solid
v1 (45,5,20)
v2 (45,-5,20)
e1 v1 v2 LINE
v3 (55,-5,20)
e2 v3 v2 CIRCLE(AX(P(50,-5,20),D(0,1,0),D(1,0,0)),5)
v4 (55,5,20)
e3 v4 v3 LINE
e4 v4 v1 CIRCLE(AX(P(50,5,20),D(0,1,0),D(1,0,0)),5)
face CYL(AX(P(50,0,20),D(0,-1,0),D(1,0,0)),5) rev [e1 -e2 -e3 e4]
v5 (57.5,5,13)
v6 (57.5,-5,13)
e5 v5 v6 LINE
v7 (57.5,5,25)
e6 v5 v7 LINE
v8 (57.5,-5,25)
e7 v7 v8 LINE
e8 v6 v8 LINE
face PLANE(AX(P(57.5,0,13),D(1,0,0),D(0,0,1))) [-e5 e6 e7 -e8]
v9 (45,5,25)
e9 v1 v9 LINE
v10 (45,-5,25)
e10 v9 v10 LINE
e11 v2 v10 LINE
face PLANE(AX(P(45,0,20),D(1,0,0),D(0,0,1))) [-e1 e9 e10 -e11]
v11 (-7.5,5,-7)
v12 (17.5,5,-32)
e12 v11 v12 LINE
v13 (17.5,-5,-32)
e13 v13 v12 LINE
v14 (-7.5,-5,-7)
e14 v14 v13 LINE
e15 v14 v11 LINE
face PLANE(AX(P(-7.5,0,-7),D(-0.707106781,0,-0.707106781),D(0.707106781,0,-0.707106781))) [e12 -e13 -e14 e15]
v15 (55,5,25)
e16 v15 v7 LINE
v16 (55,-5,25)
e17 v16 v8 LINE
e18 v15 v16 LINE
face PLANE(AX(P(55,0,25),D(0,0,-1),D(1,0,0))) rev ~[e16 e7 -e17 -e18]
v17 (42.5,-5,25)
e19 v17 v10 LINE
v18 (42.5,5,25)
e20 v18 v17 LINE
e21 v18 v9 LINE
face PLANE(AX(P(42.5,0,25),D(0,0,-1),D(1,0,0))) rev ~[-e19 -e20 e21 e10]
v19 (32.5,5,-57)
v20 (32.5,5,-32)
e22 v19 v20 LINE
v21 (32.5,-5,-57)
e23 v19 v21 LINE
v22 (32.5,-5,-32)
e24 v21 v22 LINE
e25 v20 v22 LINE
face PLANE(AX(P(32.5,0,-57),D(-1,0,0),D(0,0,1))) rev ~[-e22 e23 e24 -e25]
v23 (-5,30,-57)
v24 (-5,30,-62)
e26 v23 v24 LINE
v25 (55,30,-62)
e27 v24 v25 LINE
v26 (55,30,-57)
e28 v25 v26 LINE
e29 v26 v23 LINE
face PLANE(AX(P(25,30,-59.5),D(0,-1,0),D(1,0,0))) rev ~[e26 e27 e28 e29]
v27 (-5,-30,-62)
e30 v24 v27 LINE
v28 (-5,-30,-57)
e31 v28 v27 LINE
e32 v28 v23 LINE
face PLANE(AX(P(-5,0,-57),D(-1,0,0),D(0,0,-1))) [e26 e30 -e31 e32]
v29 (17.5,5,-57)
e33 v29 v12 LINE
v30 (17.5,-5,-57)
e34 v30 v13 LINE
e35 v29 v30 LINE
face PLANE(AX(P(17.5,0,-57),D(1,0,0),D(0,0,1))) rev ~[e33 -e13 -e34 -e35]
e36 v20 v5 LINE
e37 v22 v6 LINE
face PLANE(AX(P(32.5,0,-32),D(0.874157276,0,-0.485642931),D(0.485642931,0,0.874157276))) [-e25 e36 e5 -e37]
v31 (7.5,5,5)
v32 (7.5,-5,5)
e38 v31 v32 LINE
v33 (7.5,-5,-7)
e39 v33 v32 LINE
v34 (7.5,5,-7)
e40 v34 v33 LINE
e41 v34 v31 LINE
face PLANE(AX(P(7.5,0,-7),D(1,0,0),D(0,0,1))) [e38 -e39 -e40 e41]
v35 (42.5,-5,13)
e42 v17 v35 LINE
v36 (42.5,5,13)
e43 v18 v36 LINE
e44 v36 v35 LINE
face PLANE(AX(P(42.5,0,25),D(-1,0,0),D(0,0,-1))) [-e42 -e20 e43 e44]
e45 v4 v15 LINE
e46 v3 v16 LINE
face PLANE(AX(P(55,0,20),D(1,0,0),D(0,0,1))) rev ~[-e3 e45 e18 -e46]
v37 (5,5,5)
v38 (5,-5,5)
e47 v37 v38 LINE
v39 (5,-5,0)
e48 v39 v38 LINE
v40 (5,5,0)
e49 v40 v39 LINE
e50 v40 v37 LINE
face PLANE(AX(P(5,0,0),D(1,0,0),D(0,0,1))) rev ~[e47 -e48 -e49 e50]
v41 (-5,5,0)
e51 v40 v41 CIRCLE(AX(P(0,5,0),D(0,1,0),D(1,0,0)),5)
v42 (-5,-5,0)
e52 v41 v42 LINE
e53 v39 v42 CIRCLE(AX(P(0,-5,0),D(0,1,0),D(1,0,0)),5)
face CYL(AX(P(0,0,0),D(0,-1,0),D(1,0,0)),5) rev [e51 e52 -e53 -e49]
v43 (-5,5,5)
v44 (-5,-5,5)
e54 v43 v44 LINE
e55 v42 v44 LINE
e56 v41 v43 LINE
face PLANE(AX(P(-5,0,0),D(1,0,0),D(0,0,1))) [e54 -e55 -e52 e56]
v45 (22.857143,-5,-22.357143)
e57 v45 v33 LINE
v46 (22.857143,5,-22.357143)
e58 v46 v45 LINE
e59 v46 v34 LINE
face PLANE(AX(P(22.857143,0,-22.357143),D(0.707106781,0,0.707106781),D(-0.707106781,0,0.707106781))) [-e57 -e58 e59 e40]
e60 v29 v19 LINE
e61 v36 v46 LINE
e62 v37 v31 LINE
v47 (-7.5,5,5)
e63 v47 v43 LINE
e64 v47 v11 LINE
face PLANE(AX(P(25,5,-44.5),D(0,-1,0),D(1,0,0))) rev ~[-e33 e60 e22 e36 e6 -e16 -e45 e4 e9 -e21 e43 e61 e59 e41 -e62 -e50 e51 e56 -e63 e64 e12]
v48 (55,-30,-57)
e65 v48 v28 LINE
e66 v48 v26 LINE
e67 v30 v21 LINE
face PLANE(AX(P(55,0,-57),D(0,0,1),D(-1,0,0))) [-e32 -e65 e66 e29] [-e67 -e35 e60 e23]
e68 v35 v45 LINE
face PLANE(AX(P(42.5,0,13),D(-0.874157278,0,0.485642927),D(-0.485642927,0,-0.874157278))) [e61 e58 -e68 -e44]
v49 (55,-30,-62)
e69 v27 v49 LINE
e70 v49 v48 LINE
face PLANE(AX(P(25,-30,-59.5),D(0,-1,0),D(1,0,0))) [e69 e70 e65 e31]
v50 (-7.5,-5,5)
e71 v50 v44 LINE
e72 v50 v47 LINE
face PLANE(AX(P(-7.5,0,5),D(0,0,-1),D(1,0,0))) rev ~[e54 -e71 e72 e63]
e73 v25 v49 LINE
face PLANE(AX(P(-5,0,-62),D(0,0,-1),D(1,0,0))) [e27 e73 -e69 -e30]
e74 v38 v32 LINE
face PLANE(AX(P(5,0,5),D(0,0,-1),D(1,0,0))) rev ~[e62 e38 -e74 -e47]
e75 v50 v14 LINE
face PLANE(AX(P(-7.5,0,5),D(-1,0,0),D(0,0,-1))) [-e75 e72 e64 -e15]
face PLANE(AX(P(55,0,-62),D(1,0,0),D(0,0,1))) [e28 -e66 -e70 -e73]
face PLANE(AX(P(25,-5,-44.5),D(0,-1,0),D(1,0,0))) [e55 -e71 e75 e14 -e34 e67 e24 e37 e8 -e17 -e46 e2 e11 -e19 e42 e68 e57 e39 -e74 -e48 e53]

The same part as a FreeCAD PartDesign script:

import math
import FreeCAD as App
import Part
import Sketcher
from FreeCAD import Vector
Q = App.Units.Quantity


def add_polygon(sketch, points):
    """Adds a closed chain of lines whose ends are joined by coincident constraints."""
    first, n = sketch.GeometryCount, len(points)
    for a, b in zip(points, points[1:] + points[:1]):
        sketch.addGeometry(Part.LineSegment(App.Vector(*a, 0), App.Vector(*b, 0)), False)
    for i in range(n):
        sketch.addConstraint(Sketcher.Constraint("Coincident", first + i, 2, first + (i + 1) % n, 1))

doc = App.newDocument("Part")
body = doc.addObject("PartDesign::Body", "Body")

sketch1 = body.newObject("Sketcher::SketchObject", "Sketch")
sketch1.AttachmentSupport = (doc.getObject("XZ_Plane"), [""])
sketch1.MapMode = "FlatFace"
add_polygon(sketch1, [(-5, -57), (-5, -62), (55, -62), (55, -57)])
sketch1.addConstraint([
    Sketcher.Constraint("Vertical", 0),
    Sketcher.Constraint("Horizontal", 1),
    Sketcher.Constraint("Vertical", 2),
    Sketcher.Constraint("Horizontal", 3),
    Sketcher.Constraint("DistanceX", 1, 1, 1, 2, Q("60 mm")),
    Sketcher.Constraint("DistanceY", 0, 2, 0, 1, Q("5 mm")),
    Sketcher.Constraint("DistanceX", 0, 2, -1, 1, Q("5 mm")),
    Sketcher.Constraint("DistanceY", 0, 2, -1, 1, Q("62 mm")),
])
pad1 = body.newObject("PartDesign::Pad", "Pad")
pad1.Profile = sketch1
pad1.Type = "TwoLengths"
pad1.Length = 30
pad1.Length2 = 30

sketch2 = body.newObject("Sketcher::SketchObject", "Sketch001")
sketch2.AttachmentSupport = (doc.getObject("XZ_Plane"), [""])
sketch2.MapMode = "FlatFace"
sketch2.addGeometry([
    Part.LineSegment(Vector(17.5, -32, 0), Vector(17.5, -57, 0)),
    Part.LineSegment(Vector(17.5, -57, 0), Vector(32.5, -57, 0)),
    Part.LineSegment(Vector(32.5, -57, 0), Vector(32.5, -32, 0)),
    Part.LineSegment(Vector(32.5, -32, 0), Vector(57.5, 13, 0)),
    Part.LineSegment(Vector(57.5, 13, 0), Vector(57.5, 25, 0)),
    Part.LineSegment(Vector(57.5, 25, 0), Vector(55, 25, 0)),
    Part.LineSegment(Vector(55, 25, 0), Vector(55, 20, 0)),
    Part.ArcOfCircle(Part.Circle(Vector(50, 20, 0), Vector(0, 0, 1), 5), math.radians(180), math.radians(360)),
    Part.LineSegment(Vector(45, 20, 0), Vector(45, 25, 0)),
    Part.LineSegment(Vector(45, 25, 0), Vector(42.5, 25, 0)),
    Part.LineSegment(Vector(42.5, 25, 0), Vector(42.5, 13, 0)),
    Part.LineSegment(Vector(42.5, 13, 0), Vector(22.9, -22.4, 0)),
    Part.LineSegment(Vector(22.9, -22.4, 0), Vector(7.5, -7, 0)),
    Part.LineSegment(Vector(7.5, -7, 0), Vector(7.5, 5, 0)),
    Part.LineSegment(Vector(7.5, 5, 0), Vector(5, 5, 0)),
    Part.LineSegment(Vector(5, 5, 0), Vector(5, 0, 0)),
    Part.ArcOfCircle(Part.Circle(Vector(0, 0, 0), Vector(0, 0, 1), 5), math.radians(180), math.radians(360)),
    Part.LineSegment(Vector(-5, 0, 0), Vector(-5, 5, 0)),
    Part.LineSegment(Vector(-5, 5, 0), Vector(-7.5, 5, 0)),
    Part.LineSegment(Vector(-7.5, 5, 0), Vector(-7.5, -7, 0)),
    Part.LineSegment(Vector(-7.5, -7, 0), Vector(17.5, -32, 0)),
], False)
sketch2.addConstraint([
    Sketcher.Constraint("Coincident", 0, 2, 1, 1),
    Sketcher.Constraint("Coincident", 1, 2, 2, 1),
    Sketcher.Constraint("Coincident", 2, 2, 3, 1),
    Sketcher.Constraint("Coincident", 3, 2, 4, 1),
    Sketcher.Constraint("Coincident", 4, 2, 5, 1),
    Sketcher.Constraint("Coincident", 5, 2, 6, 1),
    Sketcher.Constraint("Tangent", 6, 2, 7, 2),
    Sketcher.Constraint("Tangent", 7, 1, 8, 1),
    Sketcher.Constraint("Coincident", 8, 2, 9, 1),
    Sketcher.Constraint("Coincident", 9, 2, 10, 1),
    Sketcher.Constraint("Coincident", 10, 2, 11, 1),
    Sketcher.Constraint("Coincident", 11, 2, 12, 1),
    Sketcher.Constraint("Coincident", 12, 2, 13, 1),
    Sketcher.Constraint("Coincident", 13, 2, 14, 1),
    Sketcher.Constraint("Coincident", 14, 2, 15, 1),
    Sketcher.Constraint("Tangent", 15, 2, 16, 2),
    Sketcher.Constraint("Tangent", 16, 1, 17, 1),
    Sketcher.Constraint("Coincident", 17, 2, 18, 1),
    Sketcher.Constraint("Coincident", 18, 2, 19, 1),
    Sketcher.Constraint("Coincident", 19, 2, 20, 1),
    Sketcher.Constraint("Coincident", 20, 2, 0, 1),
    Sketcher.Constraint("Vertical", 0),
    Sketcher.Constraint("Horizontal", 1),
    Sketcher.Constraint("Vertical", 2),
    Sketcher.Constraint("Vertical", 4),
    Sketcher.Constraint("Horizontal", 5),
    Sketcher.Constraint("Vertical", 6),
    Sketcher.Constraint("Vertical", 8),
    Sketcher.Constraint("Horizontal", 9),
    Sketcher.Constraint("Vertical", 10),
    Sketcher.Constraint("Vertical", 13),
    Sketcher.Constraint("Horizontal", 14),
    Sketcher.Constraint("Vertical", 15),
    Sketcher.Constraint("Vertical", 17),
    Sketcher.Constraint("Horizontal", 18),
    Sketcher.Constraint("Vertical", 19),
    Sketcher.Constraint("Coincident", 16, 3, -1, 1),
    Sketcher.Constraint("Equal", 7, 16),
    Sketcher.Constraint("Symmetric", 13, 2, 18, 2, -2),
    Sketcher.Constraint("Parallel", 3, 11),
    Sketcher.Constraint("Parallel", 12, 20),
    Sketcher.Constraint("Horizontal", 5, 2, 8, 2),
    Sketcher.Constraint("Horizontal", 3, 2, 10, 2),
    Sketcher.Constraint("Horizontal", 12, 2, 19, 2),
    Sketcher.Constraint("Horizontal", 2, 2, 20, 2),
    Sketcher.Constraint("Equal", 5, 9),
    Sketcher.Constraint("Equal", 9, 14),
    Sketcher.Constraint("Equal", 10, 13),
    Sketcher.Constraint("Equal", 8, 15),
    Sketcher.Constraint("Radius", 7, Q("5 mm")),
    Sketcher.Constraint("DistanceX", 1, 1, 1, 2, Q("15 mm")),
    Sketcher.Constraint("DistanceY", 0, 2, 0, 1, Q("25 mm")),
    Sketcher.Constraint("DistanceY", 4, 1, 4, 2, Q("12 mm")),
    Sketcher.Constraint("DistanceY", 6, 2, 6, 1, Q("5 mm")),
    Sketcher.Constraint("Angle", 12, Q("135 deg")),
    Sketcher.Constraint("DistanceX", 5, 2, 5, 1, Q("2.5 mm")),
    Sketcher.Constraint("DistanceX", -1, 1, 7, 3, Q("50 mm")),
    Sketcher.Constraint("DistanceY", -1, 1, 7, 3, Q("20 mm")),
    Sketcher.Constraint("DistanceY", 0, 2, -1, 1, Q("57 mm")),
])
pad2 = body.newObject("PartDesign::Pad", "Pad001")
pad2.Profile = sketch2
pad2.Type = "TwoLengths"
pad2.Length = 5
pad2.Length2 = 5

doc.recompute()
